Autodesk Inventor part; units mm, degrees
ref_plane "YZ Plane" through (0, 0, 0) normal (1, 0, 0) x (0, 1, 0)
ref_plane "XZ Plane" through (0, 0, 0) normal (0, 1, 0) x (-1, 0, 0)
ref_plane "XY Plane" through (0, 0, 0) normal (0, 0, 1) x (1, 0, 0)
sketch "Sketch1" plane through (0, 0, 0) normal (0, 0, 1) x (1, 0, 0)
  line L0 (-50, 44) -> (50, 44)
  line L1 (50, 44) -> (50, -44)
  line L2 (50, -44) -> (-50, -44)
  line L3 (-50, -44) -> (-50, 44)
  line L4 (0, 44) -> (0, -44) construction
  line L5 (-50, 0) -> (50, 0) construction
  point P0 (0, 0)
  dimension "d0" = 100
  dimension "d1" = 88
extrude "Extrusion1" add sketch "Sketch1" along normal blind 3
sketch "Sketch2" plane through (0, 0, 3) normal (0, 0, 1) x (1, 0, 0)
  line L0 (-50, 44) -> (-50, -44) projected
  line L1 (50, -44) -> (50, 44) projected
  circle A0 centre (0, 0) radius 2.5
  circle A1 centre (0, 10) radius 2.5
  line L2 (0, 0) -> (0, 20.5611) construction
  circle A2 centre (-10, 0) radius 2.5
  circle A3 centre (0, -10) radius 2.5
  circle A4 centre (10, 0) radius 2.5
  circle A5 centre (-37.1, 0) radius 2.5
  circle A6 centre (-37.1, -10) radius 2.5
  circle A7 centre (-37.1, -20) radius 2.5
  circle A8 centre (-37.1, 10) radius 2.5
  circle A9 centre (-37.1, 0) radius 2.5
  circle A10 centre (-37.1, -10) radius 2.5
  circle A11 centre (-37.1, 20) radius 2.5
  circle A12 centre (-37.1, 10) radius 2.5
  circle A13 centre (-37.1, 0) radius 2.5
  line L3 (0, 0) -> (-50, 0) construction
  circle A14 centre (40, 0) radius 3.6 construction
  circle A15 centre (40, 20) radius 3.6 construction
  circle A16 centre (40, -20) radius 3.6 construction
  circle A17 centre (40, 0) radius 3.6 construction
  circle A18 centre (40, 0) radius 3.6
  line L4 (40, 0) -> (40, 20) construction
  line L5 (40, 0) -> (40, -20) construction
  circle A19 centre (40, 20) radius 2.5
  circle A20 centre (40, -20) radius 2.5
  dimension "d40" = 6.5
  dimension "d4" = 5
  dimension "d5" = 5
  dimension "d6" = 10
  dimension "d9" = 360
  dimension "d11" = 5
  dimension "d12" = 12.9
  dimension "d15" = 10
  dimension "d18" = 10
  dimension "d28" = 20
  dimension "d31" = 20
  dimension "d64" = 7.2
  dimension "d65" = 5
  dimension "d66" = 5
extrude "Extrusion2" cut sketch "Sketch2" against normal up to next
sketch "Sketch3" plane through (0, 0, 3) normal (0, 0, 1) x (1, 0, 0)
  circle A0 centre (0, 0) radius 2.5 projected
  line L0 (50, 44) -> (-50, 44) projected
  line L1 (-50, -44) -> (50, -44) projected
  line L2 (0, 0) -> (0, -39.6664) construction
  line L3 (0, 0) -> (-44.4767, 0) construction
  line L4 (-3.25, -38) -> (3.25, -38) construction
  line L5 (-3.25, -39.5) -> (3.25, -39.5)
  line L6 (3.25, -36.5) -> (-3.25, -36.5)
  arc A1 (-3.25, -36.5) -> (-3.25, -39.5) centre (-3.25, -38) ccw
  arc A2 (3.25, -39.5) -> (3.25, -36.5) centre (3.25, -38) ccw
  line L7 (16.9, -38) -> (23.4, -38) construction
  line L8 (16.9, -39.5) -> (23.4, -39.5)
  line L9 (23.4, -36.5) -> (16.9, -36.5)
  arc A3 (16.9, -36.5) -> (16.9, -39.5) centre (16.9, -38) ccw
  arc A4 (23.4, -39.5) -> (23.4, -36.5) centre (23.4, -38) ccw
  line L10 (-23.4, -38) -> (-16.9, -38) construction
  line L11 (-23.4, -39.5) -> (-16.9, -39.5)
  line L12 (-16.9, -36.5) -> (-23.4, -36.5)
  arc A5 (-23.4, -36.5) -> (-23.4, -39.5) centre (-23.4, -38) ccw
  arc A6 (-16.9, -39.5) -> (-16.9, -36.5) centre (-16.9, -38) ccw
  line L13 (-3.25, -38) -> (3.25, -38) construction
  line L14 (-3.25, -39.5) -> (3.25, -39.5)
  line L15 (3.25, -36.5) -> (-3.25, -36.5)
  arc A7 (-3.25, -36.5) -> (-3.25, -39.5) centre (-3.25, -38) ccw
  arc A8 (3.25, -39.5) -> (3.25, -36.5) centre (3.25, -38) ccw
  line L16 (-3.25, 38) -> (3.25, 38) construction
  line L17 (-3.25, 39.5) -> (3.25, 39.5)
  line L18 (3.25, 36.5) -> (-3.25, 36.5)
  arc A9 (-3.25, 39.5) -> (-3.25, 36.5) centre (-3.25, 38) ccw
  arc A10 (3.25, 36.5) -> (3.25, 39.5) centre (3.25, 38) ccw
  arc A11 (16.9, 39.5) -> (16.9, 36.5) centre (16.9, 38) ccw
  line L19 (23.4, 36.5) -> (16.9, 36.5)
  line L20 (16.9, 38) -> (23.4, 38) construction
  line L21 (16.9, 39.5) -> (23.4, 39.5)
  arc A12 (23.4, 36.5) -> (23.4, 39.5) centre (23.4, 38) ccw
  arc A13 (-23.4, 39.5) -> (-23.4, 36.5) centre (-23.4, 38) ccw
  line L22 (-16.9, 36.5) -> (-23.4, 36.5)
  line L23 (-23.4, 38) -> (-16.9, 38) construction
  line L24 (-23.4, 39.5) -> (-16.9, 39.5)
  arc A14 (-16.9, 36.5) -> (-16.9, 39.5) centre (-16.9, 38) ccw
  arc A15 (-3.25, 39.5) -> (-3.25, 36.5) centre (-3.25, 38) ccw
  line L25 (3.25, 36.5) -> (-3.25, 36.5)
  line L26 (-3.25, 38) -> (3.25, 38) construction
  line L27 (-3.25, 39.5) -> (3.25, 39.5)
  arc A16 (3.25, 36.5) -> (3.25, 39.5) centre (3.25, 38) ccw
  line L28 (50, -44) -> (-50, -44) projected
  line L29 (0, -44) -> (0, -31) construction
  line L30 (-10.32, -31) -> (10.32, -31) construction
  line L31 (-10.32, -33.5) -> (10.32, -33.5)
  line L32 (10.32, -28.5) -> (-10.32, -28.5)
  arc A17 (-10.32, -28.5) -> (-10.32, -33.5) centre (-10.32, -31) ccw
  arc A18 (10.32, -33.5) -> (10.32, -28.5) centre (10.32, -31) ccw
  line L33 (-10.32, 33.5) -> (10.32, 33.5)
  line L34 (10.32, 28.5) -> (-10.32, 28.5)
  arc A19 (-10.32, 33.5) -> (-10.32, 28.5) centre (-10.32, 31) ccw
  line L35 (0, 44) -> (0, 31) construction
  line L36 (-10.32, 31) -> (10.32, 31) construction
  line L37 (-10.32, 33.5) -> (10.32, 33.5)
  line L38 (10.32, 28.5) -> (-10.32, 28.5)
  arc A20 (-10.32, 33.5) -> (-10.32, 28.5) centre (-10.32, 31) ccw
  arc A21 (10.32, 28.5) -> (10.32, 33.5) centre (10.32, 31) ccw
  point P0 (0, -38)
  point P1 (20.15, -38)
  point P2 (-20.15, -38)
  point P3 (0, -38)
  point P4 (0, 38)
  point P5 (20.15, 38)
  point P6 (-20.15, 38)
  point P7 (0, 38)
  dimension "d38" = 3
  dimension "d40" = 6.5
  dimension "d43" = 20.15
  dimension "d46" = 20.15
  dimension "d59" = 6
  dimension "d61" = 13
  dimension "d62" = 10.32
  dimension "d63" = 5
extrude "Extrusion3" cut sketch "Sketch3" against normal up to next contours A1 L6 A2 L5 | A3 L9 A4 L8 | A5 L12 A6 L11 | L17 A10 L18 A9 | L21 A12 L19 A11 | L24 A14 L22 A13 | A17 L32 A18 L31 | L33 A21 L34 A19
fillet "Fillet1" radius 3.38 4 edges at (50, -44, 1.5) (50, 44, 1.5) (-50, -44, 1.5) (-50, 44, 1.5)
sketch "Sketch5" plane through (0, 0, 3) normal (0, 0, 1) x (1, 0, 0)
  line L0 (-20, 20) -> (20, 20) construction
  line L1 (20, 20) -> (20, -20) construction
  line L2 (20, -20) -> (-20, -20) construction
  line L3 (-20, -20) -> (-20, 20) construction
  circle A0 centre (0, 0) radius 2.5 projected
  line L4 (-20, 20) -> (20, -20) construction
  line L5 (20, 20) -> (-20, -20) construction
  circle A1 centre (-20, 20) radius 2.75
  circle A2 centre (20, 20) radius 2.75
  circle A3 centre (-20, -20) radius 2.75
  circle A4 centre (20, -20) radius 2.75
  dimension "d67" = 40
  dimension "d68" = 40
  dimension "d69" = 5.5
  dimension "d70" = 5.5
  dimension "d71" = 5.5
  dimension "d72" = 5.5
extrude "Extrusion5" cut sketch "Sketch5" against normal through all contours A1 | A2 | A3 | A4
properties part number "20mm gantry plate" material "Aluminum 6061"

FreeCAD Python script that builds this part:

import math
import FreeCAD as App
import Part
import Sketcher
from FreeCAD import Vector
Q = App.Units.Quantity


def edges_at(feature, points):
    """Names of the edges that pass closest to the given points."""
    edges = feature.Shape.Edges
    near = lambda p: min(range(len(edges)), key=lambda i: edges[i].distToShape(Part.Vertex(*p))[0])
    return sorted({f"Edge{near(p) + 1}" for p in points})

doc = App.newDocument("Part")
body = doc.addObject("PartDesign::Body", "Body")

# Sketch on XY plane
sketch1 = doc.addObject("Sketcher::SketchObject", "Sketch")
body.addObject(sketch1)
sketch1.AttachmentSupport = (doc.XY_Plane, [""])
sketch1.MapMode = "FlatFace"
sketch1.addGeometry([
    Part.LineSegment(Vector(50, 44, 0), Vector(-50, 44, 0)),
    Part.LineSegment(Vector(-50, 44, 0), Vector(-50, -44, 0)),
    Part.LineSegment(Vector(-50, -44, 0), Vector(50, -44, 0)),
    Part.LineSegment(Vector(50, -44, 0), Vector(50, 44, 0)),
], False)
sketch1.addConstraint([
    Sketcher.Constraint("Coincident", 0, 2, 1, 1),
    Sketcher.Constraint("Coincident", 1, 2, 2, 1),
    Sketcher.Constraint("Coincident", 2, 2, 3, 1),
    Sketcher.Constraint("Coincident", 3, 2, 0, 1),
    Sketcher.Constraint("Horizontal", 0),
    Sketcher.Constraint("Vertical", 1),
    Sketcher.Constraint("Horizontal", 2),
    Sketcher.Constraint("Vertical", 3),
    Sketcher.Constraint("Symmetric", 0, 2, 2, 2, -1, 1),
    Sketcher.Constraint("DistanceX", 0, 2, 0, 1, Q("100 mm")),
    Sketcher.Constraint("DistanceY", 1, 2, 1, 1, Q("88 mm")),
])
pad1 = doc.addObject("PartDesign::Pad", "Pad")
body.addObject(pad1)
pad1.Profile = sketch1
pad1.Length = 3

# Sketch on XY plane
sketch2 = doc.addObject("Sketcher::SketchObject", "Sketch001")
body.addObject(sketch2)
sketch2.AttachmentSupport = (doc.XY_Plane, [""])
sketch2.MapMode = "FlatFace"
sketch2.AttachmentOffset = App.Placement(Vector(0, 0, 3), App.Rotation())
sketch2.addGeometry([
    Part.Circle(Vector(0, 0, 0), Vector(0, 0, 1), 2.5),  # 0
    Part.Circle(Vector(0, 10, 0), Vector(0, 0, 1), 2.5),  # 1
    Part.Circle(Vector(-10, 0, 0), Vector(0, 0, 1), 2.5),  # 2
    Part.Circle(Vector(0, -10, 0), Vector(0, 0, 1), 2.5),  # 3
    Part.Circle(Vector(10, 0, 0), Vector(0, 0, 1), 2.5),  # 4
    Part.Circle(Vector(-37.1, 0, 0), Vector(0, 0, 1), 2.5),  # 5
    Part.Circle(Vector(-37.1, -10, 0), Vector(0, 0, 1), 2.5),  # 6
    Part.Circle(Vector(-37.1, -20, 0), Vector(0, 0, 1), 2.5),  # 7
    Part.Circle(Vector(-37.1, 10, 0), Vector(0, 0, 1), 2.5),  # 8
    Part.Circle(Vector(-37.1, 20, 0), Vector(0, 0, 1), 2.5),  # 9
    Part.Circle(Vector(40, 0, 0), Vector(0, 0, 1), 3.6),  # 10
    Part.Circle(Vector(40, 20, 0), Vector(0, 0, 1), 2.5),  # 11
    Part.Circle(Vector(40, -20, 0), Vector(0, 0, 1), 2.5),  # 12
], False)
sketch2.addConstraint([
    Sketcher.Constraint("Coincident", 0, 3, -1, 1),
    Sketcher.Constraint("Equal", 0, 1),
    Sketcher.Constraint("Equal", 1, 2),
    Sketcher.Constraint("Equal", 2, 3),
    Sketcher.Constraint("Equal", 3, 4),
    Sketcher.Constraint("Equal", 4, 5),
    Sketcher.Constraint("Equal", 5, 6),
    Sketcher.Constraint("Equal", 6, 7),
    Sketcher.Constraint("Equal", 7, 8),
    Sketcher.Constraint("Equal", 8, 9),
    Sketcher.Constraint("Equal", 9, 11),
    Sketcher.Constraint("Equal", 11, 12),
    Sketcher.Constraint("Symmetric", 1, 3, 3, 3, -1, 1),
    Sketcher.Constraint("Symmetric", 2, 3, 4, 3, -1, 1),
    Sketcher.Constraint("Symmetric", 6, 3, 8, 3, -1),
    Sketcher.Constraint("Symmetric", 7, 3, 9, 3, -1),
    Sketcher.Constraint("Symmetric", 11, 3, 12, 3, -1),
    Sketcher.Constraint("PointOnObject", 1, 3, -2),
    Sketcher.Constraint("PointOnObject", 2, 3, -1),
    Sketcher.Constraint("PointOnObject", 5, 3, -1),
    Sketcher.Constraint("PointOnObject", 10, 3, -1),
    Sketcher.Constraint("Horizontal", 3, 3, 6, 3),
    Sketcher.Constraint("Horizontal", 9, 3, 11, 3),
    Sketcher.Constraint("Vertical", 5, 3, 6, 3),
    Sketcher.Constraint("Vertical", 6, 3, 7, 3),
    Sketcher.Constraint("Vertical", 10, 3, 11, 3),
    Sketcher.Constraint("Diameter", 0, Q("5 mm")),
    Sketcher.Constraint("Diameter", 10, Q("7.2 mm")),
    Sketcher.Constraint("DistanceY", -1, 1, 1, 3, Q("10 mm")),
    Sketcher.Constraint("DistanceX", 2, 3, -1, 1, Q("10 mm")),
    Sketcher.Constraint("DistanceY", 7, 3, -1, 1, Q("20 mm")),
    Sketcher.Constraint("DistanceX", -1, 1, 10, 3, Q("40 mm")),
    Sketcher.Constraint("DistanceX", 5, 3, -1, 1, Q("37.1 mm")),
])
pocket1 = doc.addObject("PartDesign::Pocket", "Pocket")
body.addObject(pocket1)
pocket1.Profile = sketch2
pocket1.Type = "UpToFirst"

# Sketch on XY plane
sketch3 = doc.addObject("Sketcher::SketchObject", "Sketch002")
body.addObject(sketch3)
sketch3.AttachmentSupport = (doc.XY_Plane, [""])
sketch3.MapMode = "FlatFace"
sketch3.AttachmentOffset = App.Placement(Vector(0, 0, 3), App.Rotation())
sketch3.addGeometry([
    Part.ArcOfCircle(Part.Circle(Vector(-3.2, -38, 0), Vector(0, 0, 1), 1.5), math.radians(90), math.radians(270)),  # 0
    Part.LineSegment(Vector(-3.2, -39.5, 0), Vector(3.2, -39.5, 0)),  # 1
    Part.ArcOfCircle(Part.Circle(Vector(3.2, -38, 0), Vector(0, 0, 1), 1.5), math.radians(-90), math.radians(90)),  # 2
    Part.LineSegment(Vector(3.2, -36.5, 0), Vector(-3.2, -36.5, 0)),  # 3
    Part.ArcOfCircle(Part.Circle(Vector(16.9, -38, 0), Vector(0, 0, 1), 1.5), math.radians(90), math.radians(270)),  # 4
    Part.LineSegment(Vector(16.9, -39.5, 0), Vector(23.4, -39.5, 0)),  # 5
    Part.ArcOfCircle(Part.Circle(Vector(23.4, -38, 0), Vector(0, 0, 1), 1.5), math.radians(-90), math.radians(90)),  # 6
    Part.LineSegment(Vector(23.4, -36.5, 0), Vector(16.9, -36.5, 0)),  # 7
    Part.ArcOfCircle(Part.Circle(Vector(-23.4, -38, 0), Vector(0, 0, 1), 1.5), math.radians(90), math.radians(270)),  # 8
    Part.LineSegment(Vector(-23.4, -39.5, 0), Vector(-16.9, -39.5, 0)),  # 9
    Part.ArcOfCircle(Part.Circle(Vector(-16.9, -38, 0), Vector(0, 0, 1), 1.5), math.radians(-90), math.radians(90)),  # 10
    Part.LineSegment(Vector(-16.9, -36.5, 0), Vector(-23.4, -36.5, 0)),  # 11
    Part.LineSegment(Vector(3.2, 39.5, 0), Vector(-3.2, 39.5, 0)),  # 12
    Part.ArcOfCircle(Part.Circle(Vector(-3.2, 38, 0), Vector(0, 0, 1), 1.5), math.radians(90), math.radians(270)),  # 13
    Part.LineSegment(Vector(-3.2, 36.5, 0), Vector(3.2, 36.5, 0)),  # 14
    Part.ArcOfCircle(Part.Circle(Vector(3.2, 38, 0), Vector(0, 0, 1), 1.5), math.radians(-90), math.radians(90)),  # 15
    Part.LineSegment(Vector(23.4, 39.5, 0), Vector(16.9, 39.5, 0)),  # 16
    Part.ArcOfCircle(Part.Circle(Vector(16.9, 38, 0), Vector(0, 0, 1), 1.5), math.radians(90), math.radians(270)),  # 17
    Part.LineSegment(Vector(16.9, 36.5, 0), Vector(23.4, 36.5, 0)),  # 18
    Part.ArcOfCircle(Part.Circle(Vector(23.4, 38, 0), Vector(0, 0, 1), 1.5), math.radians(-90), math.radians(90)),  # 19
    Part.LineSegment(Vector(-16.9, 39.5, 0), Vector(-23.4, 39.5, 0)),  # 20
    Part.ArcOfCircle(Part.Circle(Vector(-23.4, 38, 0), Vector(0, 0, 1), 1.5), math.radians(90), math.radians(270)),  # 21
    Part.LineSegment(Vector(-23.4, 36.5, 0), Vector(-16.9, 36.5, 0)),  # 22
    Part.ArcOfCircle(Part.Circle(Vector(-16.9, 38, 0), Vector(0, 0, 1), 1.5), math.radians(-90), math.radians(90)),  # 23
    Part.ArcOfCircle(Part.Circle(Vector(-10.3, -31, 0), Vector(0, 0, 1), 2.5), math.radians(90), math.radians(270)),  # 24
    Part.LineSegment(Vector(-10.3, -33.5, 0), Vector(10.3, -33.5, 0)),  # 25
    Part.ArcOfCircle(Part.Circle(Vector(10.3, -31, 0), Vector(0, 0, 1), 2.5), math.radians(-90), math.radians(90)),  # 26
    Part.LineSegment(Vector(10.3, -28.5, 0), Vector(-10.3, -28.5, 0)),  # 27
    Part.LineSegment(Vector(10.3, 33.5, 0), Vector(-10.3, 33.5, 0)),  # 28
    Part.ArcOfCircle(Part.Circle(Vector(-10.3, 31, 0), Vector(0, 0, 1), 2.5), math.radians(90), math.radians(270)),  # 29
    Part.LineSegment(Vector(-10.3, 28.5, 0), Vector(10.3, 28.5, 0)),  # 30
    Part.ArcOfCircle(Part.Circle(Vector(10.3, 31, 0), Vector(0, 0, 1), 2.5), math.radians(-90), math.radians(90)),  # 31
], False)
sketch3.addConstraint([
    Sketcher.Constraint("Tangent", 0, 2, 1, 1),
    Sketcher.Constraint("Tangent", 1, 2, 2, 1),
    Sketcher.Constraint("Tangent", 2, 2, 3, 1),
    Sketcher.Constraint("Tangent", 3, 2, 0, 1),
    Sketcher.Constraint("Tangent", 4, 2, 5, 1),
    Sketcher.Constraint("Tangent", 5, 2, 6, 1),
    Sketcher.Constraint("Tangent", 6, 2, 7, 1),
    Sketcher.Constraint("Tangent", 7, 2, 4, 1),
    Sketcher.Constraint("Tangent", 8, 2, 9, 1),
    Sketcher.Constraint("Tangent", 9, 2, 10, 1),
    Sketcher.Constraint("Tangent", 10, 2, 11, 1),
    Sketcher.Constraint("Tangent", 11, 2, 8, 1),
    Sketcher.Constraint("Tangent", 12, 2, 13, 1),
    Sketcher.Constraint("Tangent", 13, 2, 14, 1),
    Sketcher.Constraint("Tangent", 14, 2, 15, 1),
    Sketcher.Constraint("Tangent", 15, 2, 12, 1),
    Sketcher.Constraint("Tangent", 16, 2, 17, 1),
    Sketcher.Constraint("Tangent", 17, 2, 18, 1),
    Sketcher.Constraint("Tangent", 18, 2, 19, 1),
    Sketcher.Constraint("Tangent", 19, 2, 16, 1),
    Sketcher.Constraint("Tangent", 20, 2, 21, 1),
    Sketcher.Constraint("Tangent", 21, 2, 22, 1),
    Sketcher.Constraint("Tangent", 22, 2, 23, 1),
    Sketcher.Constraint("Tangent", 23, 2, 20, 1),
    Sketcher.Constraint("Tangent", 24, 2, 25, 1),
    Sketcher.Constraint("Tangent", 25, 2, 26, 1),
    Sketcher.Constraint("Tangent", 26, 2, 27, 1),
    Sketcher.Constraint("Tangent", 27, 2, 24, 1),
    Sketcher.Constraint("Tangent", 28, 2, 29, 1),
    Sketcher.Constraint("Tangent", 29, 2, 30, 1),
    Sketcher.Constraint("Tangent", 30, 2, 31, 1),
    Sketcher.Constraint("Tangent", 31, 2, 28, 1),
    Sketcher.Constraint("Horizontal", 1),
    Sketcher.Constraint("Horizontal", 3),
    Sketcher.Constraint("Horizontal", 5),
    Sketcher.Constraint("Horizontal", 7),
    Sketcher.Constraint("Horizontal", 9),
    Sketcher.Constraint("Horizontal", 11),
    Sketcher.Constraint("Horizontal", 12),
    Sketcher.Constraint("Horizontal", 14),
    Sketcher.Constraint("Horizontal", 16),
    Sketcher.Constraint("Horizontal", 18),
    Sketcher.Constraint("Horizontal", 20),
    Sketcher.Constraint("Horizontal", 22),
    Sketcher.Constraint("Horizontal", 25),
    Sketcher.Constraint("Horizontal", 27),
    Sketcher.Constraint("Horizontal", 28),
    Sketcher.Constraint("Horizontal", 30),
    Sketcher.Constraint("Equal", 2, 4),
    Sketcher.Constraint("Equal", 6, 8),
    Sketcher.Constraint("Equal", 10, 13),
    Sketcher.Constraint("Equal", 15, 17),
    Sketcher.Constraint("Equal", 19, 21),
    Sketcher.Constraint("Equal", 26, 29),
    Sketcher.Constraint("Symmetric", 2, 3, 13, 3, -1, 1),
    Sketcher.Constraint("Symmetric", 10, 3, 17, 3, -1, 1),
    Sketcher.Constraint("Symmetric", 6, 3, 21, 3, -1, 1),
    Sketcher.Constraint("Symmetric", 26, 3, 29, 3, -1, 1),
    Sketcher.Constraint("Symmetric", 6, 3, 8, 3, -2),
    Sketcher.Constraint("Horizontal", 2, 3, 4, 3),
    Sketcher.Constraint("Vertical", 0, 3, 13, 3),
    Sketcher.Constraint("Vertical", 2, 3, 15, 3),
    Sketcher.Constraint("Vertical", 4, 3, 17, 3),
    Sketcher.Constraint("Vertical", 6, 3, 19, 3),
    Sketcher.Constraint("Vertical", 10, 3, 23, 3),
    Sketcher.Constraint("Vertical", 24, 3, 29, 3),
    Sketcher.Constraint("Vertical", 26, 3, 31, 3),
    Sketcher.Constraint("Equal", 3, 5),
    Sketcher.Constraint("Radius", 0, Q("1.5 mm")),
    Sketcher.Constraint("Radius", 24, Q("2.5 mm")),
    Sketcher.Constraint("DistanceX", 1, 1, 1, 2, Q("6.5 mm")),
    Sketcher.Constraint("DistanceY", 10, 2, 24, 2, Q("3 mm")),
    Sketcher.Constraint("DistanceX", 24, 3, -1, 1, Q("10.32 mm")),
    Sketcher.Constraint("DistanceX", 0, 3, 4, 3, Q("20.15 mm")),
    Sketcher.Constraint("DistanceY", 0, 3, -1, 1, Q("38 mm")),
])
pocket2 = doc.addObject("PartDesign::Pocket", "Pocket001")
body.addObject(pocket2)
pocket2.Profile = sketch3
pocket2.Length = 3
doc.recompute()

fillet = doc.addObject("PartDesign::Fillet", "Fillet")
body.addObject(fillet)
fillet.Base = (pocket2, edges_at(pocket2, [
    (50, -44, 1.5),
    (50, 44, 1.5),
    (-50, -44, 1.5),
    (-50, 44, 1.5),
]))
fillet.Radius = 3.38

# Sketch on XY plane
sketch4 = doc.addObject("Sketcher::SketchObject", "Sketch003")
body.addObject(sketch4)
sketch4.AttachmentSupport = (doc.XY_Plane, [""])
sketch4.MapMode = "FlatFace"
sketch4.AttachmentOffset = App.Placement(Vector(0, 0, 3), App.Rotation())
sketch4.addGeometry([
    Part.Circle(Vector(-20, 20, 0), Vector(0, 0, 1), 2.8),
    Part.Circle(Vector(20, 20, 0), Vector(0, 0, 1), 2.8),
    Part.Circle(Vector(-20, -20, 0), Vector(0, 0, 1), 2.8),
    Part.Circle(Vector(20, -20, 0), Vector(0, 0, 1), 2.8),
], False)
sketch4.addConstraint([
    Sketcher.Constraint("Equal", 0, 1),
    Sketcher.Constraint("Equal", 1, 2),
    Sketcher.Constraint("Equal", 2, 3),
    Sketcher.Constraint("Symmetric", 1, 3, 2, 3, -1, 1),
    Sketcher.Constraint("Symmetric", 0, 3, 3, 3, -1, 1),
    Sketcher.Constraint("Symmetric", 0, 3, 1, 3, -2),
    Sketcher.Constraint("Diameter", 0, Q("5.5 mm")),
    Sketcher.Constraint("DistanceX", 0, 3, 1, 3, Q("40 mm")),
    Sketcher.Constraint("DistanceY", 2, 3, 0, 3, Q("40 mm")),
])
pocket3 = doc.addObject("PartDesign::Pocket", "Pocket002")
body.addObject(pocket3)
pocket3.Profile = sketch4
pocket3.Type = "ThroughAll"

doc.recompute()
